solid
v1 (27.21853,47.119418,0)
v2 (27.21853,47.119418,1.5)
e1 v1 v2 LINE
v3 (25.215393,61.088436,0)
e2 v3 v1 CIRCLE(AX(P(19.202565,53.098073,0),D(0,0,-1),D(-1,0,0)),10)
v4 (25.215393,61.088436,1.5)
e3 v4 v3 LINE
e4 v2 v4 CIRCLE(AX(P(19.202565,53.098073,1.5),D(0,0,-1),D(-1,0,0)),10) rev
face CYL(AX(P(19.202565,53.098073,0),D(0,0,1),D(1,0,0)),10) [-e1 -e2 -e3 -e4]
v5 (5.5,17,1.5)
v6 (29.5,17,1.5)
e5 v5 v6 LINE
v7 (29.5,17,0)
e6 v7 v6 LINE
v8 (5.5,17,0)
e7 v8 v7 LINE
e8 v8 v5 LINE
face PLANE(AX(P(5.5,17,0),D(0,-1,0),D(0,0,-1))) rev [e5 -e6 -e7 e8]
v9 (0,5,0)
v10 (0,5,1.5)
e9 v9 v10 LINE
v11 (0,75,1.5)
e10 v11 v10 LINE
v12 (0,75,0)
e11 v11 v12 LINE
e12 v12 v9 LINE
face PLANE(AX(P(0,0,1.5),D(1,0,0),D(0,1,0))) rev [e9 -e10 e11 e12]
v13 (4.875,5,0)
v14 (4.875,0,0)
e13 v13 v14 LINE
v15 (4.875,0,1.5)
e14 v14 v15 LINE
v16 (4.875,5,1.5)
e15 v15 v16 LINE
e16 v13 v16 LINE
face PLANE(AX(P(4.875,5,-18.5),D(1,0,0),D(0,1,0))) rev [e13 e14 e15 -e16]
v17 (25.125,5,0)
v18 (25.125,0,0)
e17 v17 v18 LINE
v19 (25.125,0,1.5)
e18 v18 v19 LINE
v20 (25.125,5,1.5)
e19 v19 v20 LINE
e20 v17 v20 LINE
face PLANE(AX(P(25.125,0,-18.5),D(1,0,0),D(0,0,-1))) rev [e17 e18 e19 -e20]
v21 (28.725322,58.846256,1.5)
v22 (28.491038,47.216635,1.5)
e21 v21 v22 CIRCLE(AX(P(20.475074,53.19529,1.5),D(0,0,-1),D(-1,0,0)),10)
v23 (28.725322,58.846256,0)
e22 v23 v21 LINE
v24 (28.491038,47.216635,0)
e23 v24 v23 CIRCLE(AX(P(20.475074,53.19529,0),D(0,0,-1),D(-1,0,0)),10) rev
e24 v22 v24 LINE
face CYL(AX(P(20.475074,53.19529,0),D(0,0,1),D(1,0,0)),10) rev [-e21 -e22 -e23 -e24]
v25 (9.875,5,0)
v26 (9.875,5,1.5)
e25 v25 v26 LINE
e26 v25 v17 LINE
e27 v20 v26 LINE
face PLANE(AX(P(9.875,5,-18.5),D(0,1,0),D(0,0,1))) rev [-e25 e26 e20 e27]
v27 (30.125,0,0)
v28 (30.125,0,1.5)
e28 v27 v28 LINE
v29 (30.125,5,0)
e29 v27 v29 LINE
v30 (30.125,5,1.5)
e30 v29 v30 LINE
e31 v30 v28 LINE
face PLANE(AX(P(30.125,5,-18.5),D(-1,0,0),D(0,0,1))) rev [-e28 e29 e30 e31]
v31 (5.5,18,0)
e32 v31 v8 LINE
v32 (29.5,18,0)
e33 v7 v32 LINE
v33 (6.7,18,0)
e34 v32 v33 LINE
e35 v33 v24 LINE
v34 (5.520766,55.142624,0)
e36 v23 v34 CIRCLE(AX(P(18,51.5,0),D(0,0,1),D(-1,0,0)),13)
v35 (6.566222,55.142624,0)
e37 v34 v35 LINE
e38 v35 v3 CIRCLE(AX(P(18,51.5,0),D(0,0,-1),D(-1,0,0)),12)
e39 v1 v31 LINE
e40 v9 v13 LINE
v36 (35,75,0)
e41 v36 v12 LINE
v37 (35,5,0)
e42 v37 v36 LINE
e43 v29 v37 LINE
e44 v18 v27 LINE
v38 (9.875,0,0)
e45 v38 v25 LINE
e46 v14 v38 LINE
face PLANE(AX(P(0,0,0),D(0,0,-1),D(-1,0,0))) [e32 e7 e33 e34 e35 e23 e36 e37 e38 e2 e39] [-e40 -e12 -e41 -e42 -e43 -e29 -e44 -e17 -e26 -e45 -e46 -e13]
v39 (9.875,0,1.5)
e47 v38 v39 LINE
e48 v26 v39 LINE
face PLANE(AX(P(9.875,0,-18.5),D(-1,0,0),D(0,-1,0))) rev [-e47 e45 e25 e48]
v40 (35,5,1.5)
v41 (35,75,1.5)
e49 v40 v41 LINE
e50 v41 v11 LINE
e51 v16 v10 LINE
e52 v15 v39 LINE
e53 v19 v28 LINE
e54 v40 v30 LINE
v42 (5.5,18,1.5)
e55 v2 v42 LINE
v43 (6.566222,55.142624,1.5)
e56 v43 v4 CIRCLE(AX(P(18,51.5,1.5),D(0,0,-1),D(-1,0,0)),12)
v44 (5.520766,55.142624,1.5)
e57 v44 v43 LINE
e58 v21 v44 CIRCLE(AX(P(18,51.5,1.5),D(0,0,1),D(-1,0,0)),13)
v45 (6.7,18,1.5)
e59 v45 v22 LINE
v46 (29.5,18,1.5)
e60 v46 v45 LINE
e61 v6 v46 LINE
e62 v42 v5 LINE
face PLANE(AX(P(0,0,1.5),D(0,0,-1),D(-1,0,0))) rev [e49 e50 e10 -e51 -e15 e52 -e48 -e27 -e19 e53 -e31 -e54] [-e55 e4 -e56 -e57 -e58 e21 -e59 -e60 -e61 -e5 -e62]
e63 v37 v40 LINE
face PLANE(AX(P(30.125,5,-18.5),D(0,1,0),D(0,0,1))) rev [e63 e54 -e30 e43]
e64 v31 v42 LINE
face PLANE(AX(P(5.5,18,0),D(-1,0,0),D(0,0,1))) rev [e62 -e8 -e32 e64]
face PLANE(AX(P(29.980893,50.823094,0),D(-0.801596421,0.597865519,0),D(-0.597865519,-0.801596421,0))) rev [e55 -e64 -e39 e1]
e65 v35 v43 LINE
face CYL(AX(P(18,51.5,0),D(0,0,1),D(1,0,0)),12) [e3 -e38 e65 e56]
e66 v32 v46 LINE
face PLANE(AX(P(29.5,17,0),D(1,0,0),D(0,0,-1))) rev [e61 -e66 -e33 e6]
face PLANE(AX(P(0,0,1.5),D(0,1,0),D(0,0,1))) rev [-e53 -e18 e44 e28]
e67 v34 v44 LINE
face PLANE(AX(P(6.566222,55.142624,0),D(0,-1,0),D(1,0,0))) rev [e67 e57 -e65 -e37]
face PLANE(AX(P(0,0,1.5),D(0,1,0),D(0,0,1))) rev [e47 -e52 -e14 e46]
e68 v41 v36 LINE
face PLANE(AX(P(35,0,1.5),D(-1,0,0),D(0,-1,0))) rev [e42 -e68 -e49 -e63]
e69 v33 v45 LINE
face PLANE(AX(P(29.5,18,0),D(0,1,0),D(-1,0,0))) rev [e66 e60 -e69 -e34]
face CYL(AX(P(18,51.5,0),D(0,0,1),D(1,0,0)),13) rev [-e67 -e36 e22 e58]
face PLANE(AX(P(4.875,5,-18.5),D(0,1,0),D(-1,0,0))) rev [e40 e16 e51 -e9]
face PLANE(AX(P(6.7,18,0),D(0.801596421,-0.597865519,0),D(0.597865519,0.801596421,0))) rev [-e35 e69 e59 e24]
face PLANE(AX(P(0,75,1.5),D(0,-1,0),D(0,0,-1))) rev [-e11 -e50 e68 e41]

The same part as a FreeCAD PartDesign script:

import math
import FreeCAD as App
import Part
import Sketcher
from FreeCAD import Vector


def edges_at(feature, points):
    """Names of the edges that pass closest to the given points."""
    edges = feature.Shape.Edges
    near = lambda p: min(range(len(edges)), key=lambda i: edges[i].distToShape(Part.Vertex(*p))[0])
    return sorted({f"Edge{near(p) + 1}" for p in points})

doc = App.newDocument("Part")
body = doc.addObject("PartDesign::Body", "Body")

sketch1 = doc.addObject("Sketcher::SketchObject", "Sketch")
body.addObject(sketch1)
sketch1.AttachmentSupport = (doc.XY_Plane, [""])
sketch1.MapMode = "FlatFace"
sketch1.addGeometry([
    Part.LineSegment(Vector(0, 75, 0), Vector(0, 0, 0)),
    Part.LineSegment(Vector(0, 0, 0), Vector(35, 0, 0)),
    Part.LineSegment(Vector(35, 0, 0), Vector(35, 75, 0)),
    Part.LineSegment(Vector(35, 75, 0), Vector(0, 75, 0)),
], False)
sketch1.addConstraint([
    Sketcher.Constraint("Coincident", 0, 2, 1, 1),
    Sketcher.Constraint("Coincident", 1, 2, 2, 1),
    Sketcher.Constraint("Coincident", 2, 2, 3, 1),
    Sketcher.Constraint("Coincident", 3, 2, 0, 1),
    Sketcher.Constraint("Vertical", 0),
    Sketcher.Constraint("Horizontal", 1),
    Sketcher.Constraint("Vertical", 2),
    Sketcher.Constraint("Horizontal", 3),
    Sketcher.Constraint("Coincident", 0, 2, -1, 1),
    Sketcher.Constraint("DistanceX", 1, 1, 1, 2, 35.0),
    Sketcher.Constraint("DistanceY", 0, 2, 0, 1, 75.0),
])
pad1 = doc.addObject("PartDesign::Pad", "Pad")
body.addObject(pad1)
pad1.Profile = sketch1
pad1.Length = 1.5

sketch2 = doc.addObject("Sketcher::SketchObject", "Sketch001")
body.addObject(sketch2)
sketch2.AttachmentSupport = (doc.XY_Plane, [""])
sketch2.MapMode = "FlatFace"
sketch2.AttachmentOffset = App.Placement(Vector(0, 0, 1.5), App.Rotation())
sketch2.addGeometry([
    Part.LineSegment(Vector(9.9, 5, 0), Vector(9.9, 0, 0)),
    Part.LineSegment(Vector(9.9, 0, 0), Vector(25.1, 0, 0)),
    Part.LineSegment(Vector(25.1, 0, 0), Vector(25.1, 5, 0)),
    Part.LineSegment(Vector(25.1, 5, 0), Vector(9.9, 5, 0)),
    Part.LineSegment(Vector(30.1, 5, 0), Vector(30.1, 0, 0)),
    Part.LineSegment(Vector(30.1, 0, 0), Vector(35, 0, 0)),
    Part.LineSegment(Vector(35, 0, 0), Vector(35, 5, 0)),
    Part.LineSegment(Vector(35, 5, 0), Vector(30.1, 5, 0)),
    Part.LineSegment(Vector(0, 5, 0), Vector(0, 0, 0)),
    Part.LineSegment(Vector(0, 0, 0), Vector(4.9, 0, 0)),
    Part.LineSegment(Vector(4.9, 0, 0), Vector(4.9, 5, 0)),
    Part.LineSegment(Vector(4.9, 5, 0), Vector(0, 5, 0)),
], False)
sketch2.addConstraint([
    Sketcher.Constraint("Coincident", 0, 2, 1, 1),
    Sketcher.Constraint("Coincident", 1, 2, 2, 1),
    Sketcher.Constraint("Coincident", 2, 2, 3, 1),
    Sketcher.Constraint("Coincident", 3, 2, 0, 1),
    Sketcher.Constraint("Coincident", 4, 2, 5, 1),
    Sketcher.Constraint("Coincident", 5, 2, 6, 1),
    Sketcher.Constraint("Coincident", 6, 2, 7, 1),
    Sketcher.Constraint("Coincident", 7, 2, 4, 1),
    Sketcher.Constraint("Coincident", 8, 2, 9, 1),
    Sketcher.Constraint("Coincident", 9, 2, 10, 1),
    Sketcher.Constraint("Coincident", 10, 2, 11, 1),
    Sketcher.Constraint("Coincident", 11, 2, 8, 1),
    Sketcher.Constraint("Vertical", 0),
    Sketcher.Constraint("Horizontal", 1),
    Sketcher.Constraint("Vertical", 2),
    Sketcher.Constraint("Horizontal", 3),
    Sketcher.Constraint("Vertical", 4),
    Sketcher.Constraint("Horizontal", 5),
    Sketcher.Constraint("Vertical", 6),
    Sketcher.Constraint("Horizontal", 7),
    Sketcher.Constraint("Vertical", 8),
    Sketcher.Constraint("Horizontal", 9),
    Sketcher.Constraint("Vertical", 10),
    Sketcher.Constraint("Horizontal", 11),
    Sketcher.Constraint("Coincident", 8, 2, -1, 1),
    Sketcher.Constraint("PointOnObject", 0, 2, -1),
    Sketcher.Constraint("PointOnObject", 4, 2, -1),
    Sketcher.Constraint("Horizontal", 3, 2, 6, 2),
    Sketcher.Constraint("Horizontal", 7, 2, 10, 2),
    Sketcher.Constraint("Equal", 7, 9),
    Sketcher.Constraint("DistanceY", 0, 2, 0, 1, 5.0),
    Sketcher.Constraint("DistanceX", -1, 1, 5, 2, 35.0),
    Sketcher.Constraint("DistanceX", 1, 2, 4, 2, 5.0),
    Sketcher.Constraint("DistanceX", 9, 2, 0, 2, 5.0),
    Sketcher.Constraint("DistanceX", 1, 1, 1, 2, 15.25),
])
pocket1 = doc.addObject("PartDesign::Pocket", "Pocket")
body.addObject(pocket1)
pocket1.Profile = sketch2
pocket1.Length = 20

sketch3 = doc.addObject("Sketcher::SketchObject", "Sketch002")
body.addObject(sketch3)
sketch3.AttachmentSupport = (doc.XY_Plane, [""])
sketch3.MapMode = "FlatFace"
sketch3.AttachmentOffset = App.Placement(Vector(0, 0, 1.5), App.Rotation())
sketch3.addGeometry([
    Part.LineSegment(Vector(30, 50.8, 0), Vector(5.5, 18, 0)),
    Part.LineSegment(Vector(5.5, 18, 0), Vector(5.5, 17, 0)),
    Part.LineSegment(Vector(5.5, 17, 0), Vector(29.5, 17, 0)),
    Part.LineSegment(Vector(29.5, 17, 0), Vector(29.5, 18, 0)),
    Part.LineSegment(Vector(29.5, 18, 0), Vector(6.7, 18, 0)),
    Part.LineSegment(Vector(6.7, 18, 0), Vector(31, 50.5, 0)),
    Part.ArcOfCircle(Part.Circle(Vector(18, 51.5, 0), Vector(0, 0, 1), 13), math.radians(-4), math.radians(164)),
    Part.LineSegment(Vector(5.5, 55.1, 0), Vector(6.6, 55.1, 0)),
    Part.ArcOfCircle(Part.Circle(Vector(18, 51.5, 0), Vector(0, 0, 1), 12), math.radians(-3), math.radians(162)),
], False)
sketch3.addConstraint([
    Sketcher.Constraint("Coincident", 0, 2, 1, 1),
    Sketcher.Constraint("Coincident", 1, 2, 2, 1),
    Sketcher.Constraint("Coincident", 2, 2, 3, 1),
    Sketcher.Constraint("Coincident", 3, 2, 4, 1),
    Sketcher.Constraint("Coincident", 4, 2, 5, 1),
    Sketcher.Constraint("Coincident", 5, 2, 6, 1),
    Sketcher.Constraint("Coincident", 6, 2, 7, 1),
    Sketcher.Constraint("Coincident", 7, 2, 8, 2),
    Sketcher.Constraint("Coincident", 8, 1, 0, 1),
    Sketcher.Constraint("Vertical", 1),
    Sketcher.Constraint("Horizontal", 2),
    Sketcher.Constraint("Vertical", 3),
    Sketcher.Constraint("Horizontal", 4),
    Sketcher.Constraint("Horizontal", 7),
    Sketcher.Constraint("Coincident", 8, 3, 6, 3),
    Sketcher.Constraint("Parallel", 0, 5),
    Sketcher.Constraint("Horizontal", 0, 2, 3, 2),
    Sketcher.Constraint("Radius", 6, 13.0),
    Sketcher.Constraint("Radius", 8, 12.0),
    Sketcher.Constraint("DistanceX", 2, 1, 2, 2, 24.0),
    Sketcher.Constraint("DistanceY", 1, 2, 1, 1, 1.0),
    Sketcher.Constraint("DistanceX", 4, 2, 4, 1, 22.8),
    Sketcher.Constraint("DistanceX", -1, 1, 6, 3, 18.0),
    Sketcher.Constraint("DistanceY", -1, 1, 0, 2, 18.0),
    Sketcher.Constraint("DistanceY", -1, 1, 6, 3, 51.5),
    Sketcher.Constraint("DistanceX", -1, 1, 0, 2, 5.5),
    Sketcher.Constraint("Distance", 5, 40.584252),
    Sketcher.Constraint("DistanceX", 7, 1, 7, 2, 1.045456),
])
pocket2 = doc.addObject("PartDesign::Pocket", "Pocket001")
body.addObject(pocket2)
pocket2.Profile = sketch3
pocket2.Length = 1.5
doc.recompute()

fillet = doc.addObject("PartDesign::Fillet", "Fillet")
body.addObject(fillet)
fillet.Base = (pocket2, edges_at(pocket2, [(30.964, 50.532, 0.75)]))
fillet.Radius = 10
doc.recompute()

fillet2 = doc.addObject("PartDesign::Fillet", "Fillet001")
body.addObject(fillet2)
fillet2.Base = (fillet, edges_at(fillet, [(29.981, 50.823, 0.75)]))
fillet2.Radius = 10

doc.recompute()
